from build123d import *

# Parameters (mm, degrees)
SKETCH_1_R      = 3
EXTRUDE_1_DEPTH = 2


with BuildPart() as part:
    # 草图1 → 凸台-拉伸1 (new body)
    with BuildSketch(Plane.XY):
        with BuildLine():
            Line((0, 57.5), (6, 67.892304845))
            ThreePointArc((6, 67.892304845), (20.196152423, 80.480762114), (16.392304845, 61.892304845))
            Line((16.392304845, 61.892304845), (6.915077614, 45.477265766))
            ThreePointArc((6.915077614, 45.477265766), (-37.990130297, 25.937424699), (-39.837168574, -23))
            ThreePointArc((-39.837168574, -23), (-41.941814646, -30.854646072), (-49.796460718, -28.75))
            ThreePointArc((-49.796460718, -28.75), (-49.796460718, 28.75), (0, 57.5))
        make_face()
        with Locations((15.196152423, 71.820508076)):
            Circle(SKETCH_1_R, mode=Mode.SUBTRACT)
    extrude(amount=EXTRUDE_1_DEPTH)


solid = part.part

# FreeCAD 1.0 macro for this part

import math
import FreeCAD as App
import Part
import Sketcher

V = App.Vector
Q = App.Units.Quantity

doc = App.newDocument("Part")
params = doc.addObject("Spreadsheet::Sheet", "Params")
for row, (alias, value) in enumerate([
    ("sketch1_diameter", "6 mm"),
    ("sketch1_radius", "46 mm"),
    ("sketch1_radius2", "10 mm"),
    ("sketch1_radius3", "57.5 mm"),
    ("sketch1_length", "12 mm"),
    ("pad1_length", "2 mm"),
], start=1):
    params.set(f"A{row}", alias)
    params.set(f"B{row}", "=" + value)
    params.setAlias(f"B{row}", alias)

body = doc.addObject("PartDesign::Body", "Body")

sketch1 = body.newObject("Sketcher::SketchObject", "Sketch")
sketch1.AttachmentSupport = (doc.getObject("XY_Plane"), [""])
sketch1.MapMode = "FlatFace"
sketch1.addGeometry(Part.LineSegment(V(6, 67.892305, 0), V(0, 57.5, 0)), False)
sketch1.addGeometry(Part.ArcOfCircle(Part.Circle(V(0, 0, 0), V(0, 0, 1), 57.5), math.radians(90), math.radians(210)), False)
sketch1.addGeometry(Part.ArcOfCircle(Part.Circle(V(-44.816815, -25.875, 0), V(0, 0, 1), 5.75), math.radians(-150), math.radians(30)), False)
sketch1.addGeometry(Part.ArcOfCircle(Part.Circle(V(0, 0, 0), V(0, 0, 1), 46), math.radians(81.354078), math.radians(210)), False)
sketch1.addGeometry(Part.LineSegment(V(6.915078, 45.477266, 0), V(16.392305, 61.892305, 0)), False)
sketch1.addGeometry(Part.ArcOfCircle(Part.Circle(V(15.196152, 71.820508, 0), V(0, 0, 1), 10), math.radians(-83.130102), math.radians(203.130102)), False)
sketch1.addGeometry(Part.Circle(V(15.196152, 71.820508, 0), V(0, 0, 1), 3), False)
sketch1.addConstraint(Sketcher.Constraint("Coincident", 0, 2, 1, 1))
sketch1.addConstraint(Sketcher.Constraint("Tangent", 1, 2, 2, 1))
sketch1.addConstraint(Sketcher.Constraint("Tangent", 2, 2, 3, 2))
sketch1.addConstraint(Sketcher.Constraint("Coincident", 3, 1, 4, 1))
sketch1.addConstraint(Sketcher.Constraint("Coincident", 4, 2, 5, 1))
sketch1.addConstraint(Sketcher.Constraint("Coincident", 5, 2, 0, 1))
sketch1.addConstraint(Sketcher.Constraint("Coincident", 1, 3, -1, 1))
sketch1.addConstraint(Sketcher.Constraint("Coincident", 3, 3, -1, 1))
sketch1.addConstraint(Sketcher.Constraint("Coincident", 6, 3, 5, 3))
sketch1.addConstraint(Sketcher.Constraint("PointOnObject", 0, 2, -2))
sketch1.addConstraint(Sketcher.Constraint("Parallel", 0, 4))
sketch1.addConstraint(Sketcher.Constraint("Diameter", 6, Q("6 mm")))
sketch1.addConstraint(Sketcher.Constraint("Radius", 3, Q("46 mm")))
sketch1.addConstraint(Sketcher.Constraint("Radius", 5, Q("10 mm")))
sketch1.addConstraint(Sketcher.Constraint("Radius", 1, Q("57.5 mm")))
sketch1.addConstraint(Sketcher.Constraint("Angle", 0, Q("-120 deg")))
sketch1.addConstraint(Sketcher.Constraint("Distance", 0, Q("12 mm")))
sketch1.addConstraint(Sketcher.Constraint("DistanceY", 2, 2, -1, 1, Q("23 mm")))
sketch1.addConstraint(Sketcher.Constraint("DistanceY", 4, 2, 5, 2, Q("6 mm")))
sketch1.addConstraint(Sketcher.Constraint("DistanceY", -1, 1, 5, 3, Q("71.820508 mm")))
sketch1.setExpression("Constraints[11]", "Params.sketch1_diameter")
sketch1.setExpression("Constraints[12]", "Params.sketch1_radius")
sketch1.setExpression("Constraints[13]", "Params.sketch1_radius2")
sketch1.setExpression("Constraints[14]", "Params.sketch1_radius3")
sketch1.setExpression("Constraints[16]", "Params.sketch1_length")
pad1 = body.newObject("PartDesign::Pad", "Pad")
pad1.Profile = sketch1
pad1.setExpression("Length", "Params.pad1_length")

doc.recompute()
